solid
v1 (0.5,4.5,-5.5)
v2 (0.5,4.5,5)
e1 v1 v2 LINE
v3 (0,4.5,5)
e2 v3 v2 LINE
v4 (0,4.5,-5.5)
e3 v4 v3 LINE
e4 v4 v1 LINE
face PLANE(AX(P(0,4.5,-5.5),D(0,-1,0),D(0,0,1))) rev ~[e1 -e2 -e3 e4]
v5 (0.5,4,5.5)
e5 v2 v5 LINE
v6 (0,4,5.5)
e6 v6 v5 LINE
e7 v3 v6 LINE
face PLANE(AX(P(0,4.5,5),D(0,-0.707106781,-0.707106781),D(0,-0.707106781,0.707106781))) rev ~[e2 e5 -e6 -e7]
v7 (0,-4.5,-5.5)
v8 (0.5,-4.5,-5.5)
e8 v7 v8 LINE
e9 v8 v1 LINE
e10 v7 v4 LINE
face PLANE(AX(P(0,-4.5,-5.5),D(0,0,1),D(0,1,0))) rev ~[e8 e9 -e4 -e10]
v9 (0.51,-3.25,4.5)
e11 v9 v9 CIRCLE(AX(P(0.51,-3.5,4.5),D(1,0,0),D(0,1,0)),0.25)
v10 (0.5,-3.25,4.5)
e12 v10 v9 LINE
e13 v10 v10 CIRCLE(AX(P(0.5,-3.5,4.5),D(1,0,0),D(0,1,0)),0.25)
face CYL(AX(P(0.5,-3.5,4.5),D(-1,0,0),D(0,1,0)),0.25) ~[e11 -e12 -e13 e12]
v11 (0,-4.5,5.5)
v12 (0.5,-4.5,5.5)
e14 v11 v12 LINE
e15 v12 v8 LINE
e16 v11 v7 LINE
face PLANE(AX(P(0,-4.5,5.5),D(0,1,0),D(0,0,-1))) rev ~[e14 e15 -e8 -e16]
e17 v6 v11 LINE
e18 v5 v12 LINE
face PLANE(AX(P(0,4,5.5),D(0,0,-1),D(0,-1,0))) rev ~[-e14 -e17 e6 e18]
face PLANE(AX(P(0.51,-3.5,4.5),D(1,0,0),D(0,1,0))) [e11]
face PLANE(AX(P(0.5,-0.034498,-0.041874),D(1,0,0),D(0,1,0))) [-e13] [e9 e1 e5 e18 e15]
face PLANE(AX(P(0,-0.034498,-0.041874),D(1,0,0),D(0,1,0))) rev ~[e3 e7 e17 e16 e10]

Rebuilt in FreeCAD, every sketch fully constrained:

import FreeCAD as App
import Part
import Sketcher
from FreeCAD import Vector
Q = App.Units.Quantity


def add_polygon(sketch, points):
    """Adds a closed chain of lines whose ends are joined by coincident constraints."""
    first, n = sketch.GeometryCount, len(points)
    for a, b in zip(points, points[1:] + points[:1]):
        sketch.addGeometry(Part.LineSegment(App.Vector(*a, 0), App.Vector(*b, 0)), False)
    for i in range(n):
        sketch.addConstraint(Sketcher.Constraint("Coincident", first + i, 2, first + (i + 1) % n, 1))

doc = App.newDocument("Part")
body = doc.addObject("PartDesign::Body", "Body")

sketch1 = body.newObject("Sketcher::SketchObject", "Sketch")
sketch1.AttachmentSupport = (doc.getObject("YZ_Plane"), [""])
sketch1.MapMode = "FlatFace"
add_polygon(sketch1, [(-4.5, -5.5), (4.5, -5.5), (4.5, 5), (4, 5.5), (-4.5, 5.5)])
sketch1.addConstraint(Sketcher.Constraint("Horizontal", 0))
sketch1.addConstraint(Sketcher.Constraint("Vertical", 1))
sketch1.addConstraint(Sketcher.Constraint("Horizontal", 3))
sketch1.addConstraint(Sketcher.Constraint("Vertical", 4))
sketch1.addConstraint(Sketcher.Constraint("Symmetric", 0, 2, 3, 2, -1, 1))
sketch1.addConstraint(Sketcher.Constraint("DistanceX", 0, 1, 0, 2, 9.0))
sketch1.addConstraint(Sketcher.Constraint("DistanceY", 4, 2, 4, 1, 11.0))
sketch1.addConstraint(Sketcher.Constraint("Angle", 2, Q("135 deg")))
sketch1.addConstraint(Sketcher.Constraint("DistanceX", 3, 2, 3, 1, 8.5))
pad1 = body.newObject("PartDesign::Pad", "Pad")
pad1.Profile = sketch1
pad1.Length = 0.5

sketch2 = body.newObject("Sketcher::SketchObject", "Sketch001")
sketch2.AttachmentSupport = (doc.getObject("YZ_Plane"), [""])
sketch2.MapMode = "FlatFace"
sketch2.AttachmentOffset = App.Placement(Vector(0, 0, 0.5), App.Rotation())
sketch2.addGeometry(Part.Circle(Vector(-3.5, 4.5, 0), Vector(0, 0, 1), 0.25), False)
sketch2.addConstraint(Sketcher.Constraint("Diameter", 0, 0.5))
sketch2.addConstraint(Sketcher.Constraint("DistanceX", 0, 3, -1, 1, 3.5))
sketch2.addConstraint(Sketcher.Constraint("DistanceY", -1, 1, 0, 3, 4.5))
pad2 = body.newObject("PartDesign::Pad", "Pad001")
pad2.Profile = sketch2
pad2.Length = 0.01

doc.recompute()
